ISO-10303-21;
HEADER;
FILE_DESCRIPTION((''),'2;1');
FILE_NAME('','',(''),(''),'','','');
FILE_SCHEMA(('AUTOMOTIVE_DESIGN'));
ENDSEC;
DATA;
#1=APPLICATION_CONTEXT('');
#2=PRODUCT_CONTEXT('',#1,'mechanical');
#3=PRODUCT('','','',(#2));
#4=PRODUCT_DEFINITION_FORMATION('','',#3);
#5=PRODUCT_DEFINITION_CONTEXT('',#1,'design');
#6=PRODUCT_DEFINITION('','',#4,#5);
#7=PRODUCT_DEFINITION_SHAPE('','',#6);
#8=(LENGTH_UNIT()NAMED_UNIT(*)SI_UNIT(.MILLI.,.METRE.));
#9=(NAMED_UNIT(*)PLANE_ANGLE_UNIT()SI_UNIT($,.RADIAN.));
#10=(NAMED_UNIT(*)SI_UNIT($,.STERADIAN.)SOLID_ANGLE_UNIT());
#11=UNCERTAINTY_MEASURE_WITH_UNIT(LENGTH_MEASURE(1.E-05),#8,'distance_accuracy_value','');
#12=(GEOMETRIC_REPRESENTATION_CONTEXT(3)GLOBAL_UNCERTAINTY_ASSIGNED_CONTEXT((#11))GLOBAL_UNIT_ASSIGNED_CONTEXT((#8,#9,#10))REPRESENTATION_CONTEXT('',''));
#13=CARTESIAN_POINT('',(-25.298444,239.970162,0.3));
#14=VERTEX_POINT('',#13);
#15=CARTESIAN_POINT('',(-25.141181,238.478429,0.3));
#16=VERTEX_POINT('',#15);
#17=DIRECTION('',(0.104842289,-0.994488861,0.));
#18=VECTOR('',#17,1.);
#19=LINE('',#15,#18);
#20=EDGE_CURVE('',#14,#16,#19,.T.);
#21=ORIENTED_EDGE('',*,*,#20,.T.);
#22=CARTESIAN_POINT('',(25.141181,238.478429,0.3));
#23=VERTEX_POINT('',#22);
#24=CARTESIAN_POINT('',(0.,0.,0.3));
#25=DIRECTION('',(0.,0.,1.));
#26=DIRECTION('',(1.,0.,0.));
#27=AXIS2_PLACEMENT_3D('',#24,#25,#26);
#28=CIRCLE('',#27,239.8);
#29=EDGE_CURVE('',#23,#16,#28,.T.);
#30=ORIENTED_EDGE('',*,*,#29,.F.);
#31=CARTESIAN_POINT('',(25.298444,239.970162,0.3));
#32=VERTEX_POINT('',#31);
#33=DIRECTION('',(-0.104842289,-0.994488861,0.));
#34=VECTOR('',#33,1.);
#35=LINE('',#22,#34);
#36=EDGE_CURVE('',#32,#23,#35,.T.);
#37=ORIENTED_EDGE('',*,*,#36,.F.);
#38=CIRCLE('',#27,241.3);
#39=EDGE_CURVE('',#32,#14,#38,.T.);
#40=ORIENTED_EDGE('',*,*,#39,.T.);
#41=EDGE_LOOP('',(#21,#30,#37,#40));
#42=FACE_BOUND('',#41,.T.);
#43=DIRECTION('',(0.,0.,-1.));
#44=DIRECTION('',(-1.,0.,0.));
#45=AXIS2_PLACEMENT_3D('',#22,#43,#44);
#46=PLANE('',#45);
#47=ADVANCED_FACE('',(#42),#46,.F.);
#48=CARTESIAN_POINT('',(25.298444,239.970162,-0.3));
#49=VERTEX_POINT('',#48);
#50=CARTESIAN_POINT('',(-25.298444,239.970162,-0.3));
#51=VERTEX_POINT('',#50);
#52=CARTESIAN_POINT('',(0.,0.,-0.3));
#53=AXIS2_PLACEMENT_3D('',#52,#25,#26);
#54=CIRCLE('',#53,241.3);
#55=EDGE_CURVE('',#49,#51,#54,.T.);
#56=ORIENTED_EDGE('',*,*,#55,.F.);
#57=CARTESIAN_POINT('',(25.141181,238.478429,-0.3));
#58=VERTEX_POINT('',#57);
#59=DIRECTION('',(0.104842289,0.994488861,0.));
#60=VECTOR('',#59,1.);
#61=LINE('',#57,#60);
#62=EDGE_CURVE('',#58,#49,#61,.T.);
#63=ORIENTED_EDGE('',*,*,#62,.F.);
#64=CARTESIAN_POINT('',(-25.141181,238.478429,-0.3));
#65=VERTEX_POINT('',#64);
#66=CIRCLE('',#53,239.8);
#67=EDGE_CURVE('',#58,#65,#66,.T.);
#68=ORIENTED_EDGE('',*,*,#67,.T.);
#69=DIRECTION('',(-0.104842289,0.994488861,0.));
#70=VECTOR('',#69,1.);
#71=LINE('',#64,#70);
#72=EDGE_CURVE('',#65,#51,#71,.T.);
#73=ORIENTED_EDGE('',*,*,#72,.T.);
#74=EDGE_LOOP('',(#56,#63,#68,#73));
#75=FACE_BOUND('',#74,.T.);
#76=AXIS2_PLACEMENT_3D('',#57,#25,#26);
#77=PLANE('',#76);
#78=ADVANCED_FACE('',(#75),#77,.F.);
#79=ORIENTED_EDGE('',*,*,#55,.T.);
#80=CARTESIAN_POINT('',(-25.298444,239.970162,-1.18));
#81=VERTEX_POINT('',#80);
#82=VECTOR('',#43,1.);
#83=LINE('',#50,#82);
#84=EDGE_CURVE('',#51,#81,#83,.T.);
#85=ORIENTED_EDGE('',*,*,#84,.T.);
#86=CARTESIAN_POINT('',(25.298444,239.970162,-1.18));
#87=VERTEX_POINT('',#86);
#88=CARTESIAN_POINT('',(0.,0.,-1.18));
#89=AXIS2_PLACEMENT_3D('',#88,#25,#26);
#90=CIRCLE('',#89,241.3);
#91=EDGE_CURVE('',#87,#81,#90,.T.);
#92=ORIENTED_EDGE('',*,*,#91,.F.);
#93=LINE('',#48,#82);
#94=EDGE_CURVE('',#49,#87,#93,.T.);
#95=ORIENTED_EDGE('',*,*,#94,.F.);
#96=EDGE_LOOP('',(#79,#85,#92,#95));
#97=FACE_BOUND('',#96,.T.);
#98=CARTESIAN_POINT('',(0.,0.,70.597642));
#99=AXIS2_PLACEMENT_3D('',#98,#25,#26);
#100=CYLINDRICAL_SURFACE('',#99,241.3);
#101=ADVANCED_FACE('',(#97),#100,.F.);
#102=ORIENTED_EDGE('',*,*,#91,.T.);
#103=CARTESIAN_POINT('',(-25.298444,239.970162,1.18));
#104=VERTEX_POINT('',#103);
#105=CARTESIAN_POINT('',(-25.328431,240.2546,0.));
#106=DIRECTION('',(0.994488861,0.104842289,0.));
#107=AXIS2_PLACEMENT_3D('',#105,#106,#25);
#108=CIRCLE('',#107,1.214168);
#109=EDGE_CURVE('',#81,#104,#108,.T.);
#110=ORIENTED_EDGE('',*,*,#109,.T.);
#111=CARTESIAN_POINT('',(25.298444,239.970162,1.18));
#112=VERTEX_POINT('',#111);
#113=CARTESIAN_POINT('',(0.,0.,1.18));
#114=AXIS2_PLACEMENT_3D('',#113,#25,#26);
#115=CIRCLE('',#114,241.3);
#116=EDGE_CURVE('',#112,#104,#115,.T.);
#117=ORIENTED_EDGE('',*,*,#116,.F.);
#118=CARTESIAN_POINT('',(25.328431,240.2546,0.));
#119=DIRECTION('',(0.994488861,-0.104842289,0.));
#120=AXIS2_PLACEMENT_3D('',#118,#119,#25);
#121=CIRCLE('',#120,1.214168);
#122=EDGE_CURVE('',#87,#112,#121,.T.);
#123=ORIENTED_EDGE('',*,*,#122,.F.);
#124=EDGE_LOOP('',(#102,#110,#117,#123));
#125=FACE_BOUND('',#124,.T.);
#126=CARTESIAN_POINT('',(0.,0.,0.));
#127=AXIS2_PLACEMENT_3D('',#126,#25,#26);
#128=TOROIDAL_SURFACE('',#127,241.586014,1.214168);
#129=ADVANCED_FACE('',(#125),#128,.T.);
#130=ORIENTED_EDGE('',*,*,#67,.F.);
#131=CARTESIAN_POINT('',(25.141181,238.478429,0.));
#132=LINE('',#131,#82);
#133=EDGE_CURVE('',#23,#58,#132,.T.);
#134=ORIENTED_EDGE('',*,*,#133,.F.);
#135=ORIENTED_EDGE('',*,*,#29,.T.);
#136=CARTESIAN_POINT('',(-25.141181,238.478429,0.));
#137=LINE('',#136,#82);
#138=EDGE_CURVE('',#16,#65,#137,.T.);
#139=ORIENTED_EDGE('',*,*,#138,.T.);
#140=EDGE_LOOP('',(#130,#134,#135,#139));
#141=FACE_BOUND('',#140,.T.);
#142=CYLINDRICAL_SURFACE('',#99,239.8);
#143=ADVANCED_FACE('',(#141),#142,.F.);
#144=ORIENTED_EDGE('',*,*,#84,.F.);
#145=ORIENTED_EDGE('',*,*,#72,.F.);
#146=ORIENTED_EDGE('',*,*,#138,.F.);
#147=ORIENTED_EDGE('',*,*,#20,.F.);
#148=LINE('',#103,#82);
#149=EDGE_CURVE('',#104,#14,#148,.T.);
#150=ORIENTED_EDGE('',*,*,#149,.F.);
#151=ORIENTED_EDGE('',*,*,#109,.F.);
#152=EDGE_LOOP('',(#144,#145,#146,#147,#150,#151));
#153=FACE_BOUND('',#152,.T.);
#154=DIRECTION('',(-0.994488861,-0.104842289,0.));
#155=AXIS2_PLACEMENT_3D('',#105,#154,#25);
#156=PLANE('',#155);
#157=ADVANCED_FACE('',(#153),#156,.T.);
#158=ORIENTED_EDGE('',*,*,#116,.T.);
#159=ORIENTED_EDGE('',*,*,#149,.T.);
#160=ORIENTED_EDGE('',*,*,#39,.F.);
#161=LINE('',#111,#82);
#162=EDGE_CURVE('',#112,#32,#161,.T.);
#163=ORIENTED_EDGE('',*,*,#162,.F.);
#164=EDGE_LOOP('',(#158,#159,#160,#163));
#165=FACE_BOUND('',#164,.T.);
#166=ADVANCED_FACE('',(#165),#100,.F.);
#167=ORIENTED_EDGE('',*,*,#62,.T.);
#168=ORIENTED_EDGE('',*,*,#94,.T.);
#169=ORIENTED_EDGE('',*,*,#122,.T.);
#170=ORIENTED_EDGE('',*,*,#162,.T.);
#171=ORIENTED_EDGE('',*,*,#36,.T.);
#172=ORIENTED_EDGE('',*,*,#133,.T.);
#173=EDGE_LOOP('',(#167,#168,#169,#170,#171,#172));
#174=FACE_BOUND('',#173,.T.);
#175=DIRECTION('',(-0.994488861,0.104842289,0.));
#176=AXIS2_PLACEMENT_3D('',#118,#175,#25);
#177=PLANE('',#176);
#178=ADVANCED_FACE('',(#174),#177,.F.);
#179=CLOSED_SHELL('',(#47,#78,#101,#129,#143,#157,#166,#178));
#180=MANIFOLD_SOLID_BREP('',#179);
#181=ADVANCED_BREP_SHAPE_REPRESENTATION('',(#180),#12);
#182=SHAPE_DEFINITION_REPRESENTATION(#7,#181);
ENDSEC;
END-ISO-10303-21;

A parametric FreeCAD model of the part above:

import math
import FreeCAD as App
import Part
import Sketcher

V = App.Vector

doc = App.newDocument("Part")
body = doc.addObject("PartDesign::Body", "Body")

# Sketch on YZ plane
sketch1 = doc.addObject("Sketcher::SketchObject", "Sketch")
body.addObject(sketch1)
sketch1.AttachmentSupport = (doc.YZ_Plane, [""])
sketch1.MapMode = "FlatFace"
sketch1.addGeometry([
    Part.LineSegment(V(239.8, -0.3, 0), V(241.3, -0.3, 0)),  # 0
    Part.LineSegment(V(241.3, -0.3, 0), V(241.3, -1.2, 0)),  # 1
    Part.ArcOfCircle(Part.Circle(V(241.6, 0, 0), V(0, 0, 1), 1.2), math.radians(-104), math.radians(104)),  # 2
    Part.LineSegment(V(241.3, 1.2, 0), V(241.3, 0.3, 0)),  # 3
    Part.LineSegment(V(241.3, 0.3, 0), V(239.8, 0.3, 0)),  # 4
    Part.LineSegment(V(239.8, 0.3, 0), V(239.8, -0.3, 0)),  # 5
], False)
sketch1.addConstraint([
    Sketcher.Constraint("Coincident", 0, 2, 1, 1),
    Sketcher.Constraint("Coincident", 1, 2, 2, 1),
    Sketcher.Constraint("Coincident", 2, 2, 3, 1),
    Sketcher.Constraint("Coincident", 3, 2, 4, 1),
    Sketcher.Constraint("Coincident", 4, 2, 5, 1),
    Sketcher.Constraint("Coincident", 5, 2, 0, 1),
    Sketcher.Constraint("Horizontal", 0),
    Sketcher.Constraint("Vertical", 1),
    Sketcher.Constraint("Vertical", 3),
    Sketcher.Constraint("Horizontal", 4),
    Sketcher.Constraint("Vertical", 5),
    Sketcher.Constraint("Symmetric", 1, 2, 2, 2, -1),
    Sketcher.Constraint("Equal", 1, 3),
    Sketcher.Constraint("DistanceX", 0, 1, 0, 2, 1.5),
    Sketcher.Constraint("DistanceY", 5, 2, 5, 1, 0.6),
    Sketcher.Constraint("DistanceY", 1, 2, 1, 1, 0.88),
    Sketcher.Constraint("DistanceX", -1, 1, 0, 2, 241.3),
    Sketcher.Constraint("Radius", 2, 1.214168),
])
revolution = doc.addObject("PartDesign::Revolution", "Revolution")
body.addObject(revolution)
revolution.Profile = sketch1
revolution.ReferenceAxis = (sketch1, ["V_Axis"])
revolution.Angle = 6.01808
revolution.Reversed = True

# Sketch on YZ plane
sketch2 = doc.addObject("Sketcher::SketchObject", "Sketch001")
body.addObject(sketch2)
sketch2.AttachmentSupport = (doc.YZ_Plane, [""])
sketch2.MapMode = "FlatFace"
sketch2.addGeometry([
    Part.LineSegment(V(239.8, -0.3, 0), V(241.3, -0.3, 0)),  # 0
    Part.LineSegment(V(241.3, -0.3, 0), V(241.3, -1.2, 0)),  # 1
    Part.ArcOfCircle(Part.Circle(V(241.6, 0, 0), V(0, 0, 1), 1.2), math.radians(-104), math.radians(104)),  # 2
    Part.LineSegment(V(241.3, 1.2, 0), V(241.3, 0.3, 0)),  # 3
    Part.LineSegment(V(241.3, 0.3, 0), V(239.8, 0.3, 0)),  # 4
    Part.LineSegment(V(239.8, 0.3, 0), V(239.8, -0.3, 0)),  # 5
], False)
sketch2.addConstraint([
    Sketcher.Constraint("Coincident", 0, 2, 1, 1),
    Sketcher.Constraint("Coincident", 1, 2, 2, 1),
    Sketcher.Constraint("Coincident", 2, 2, 3, 1),
    Sketcher.Constraint("Coincident", 3, 2, 4, 1),
    Sketcher.Constraint("Coincident", 4, 2, 5, 1),
    Sketcher.Constraint("Coincident", 5, 2, 0, 1),
    Sketcher.Constraint("Horizontal", 0),
    Sketcher.Constraint("Vertical", 1),
    Sketcher.Constraint("Vertical", 3),
    Sketcher.Constraint("Horizontal", 4),
    Sketcher.Constraint("Vertical", 5),
    Sketcher.Constraint("Symmetric", 1, 2, 2, 2, -1),
    Sketcher.Constraint("Equal", 1, 3),
    Sketcher.Constraint("DistanceX", 0, 1, 0, 2, 1.5),
    Sketcher.Constraint("DistanceY", 5, 2, 5, 1, 0.6),
    Sketcher.Constraint("DistanceY", 1, 2, 1, 1, 0.88),
    Sketcher.Constraint("DistanceX", -1, 1, 0, 2, 241.3),
    Sketcher.Constraint("Radius", 2, 1.214168),
])
revolution2 = doc.addObject("PartDesign::Revolution", "Revolution001")
body.addObject(revolution2)
revolution2.Profile = sketch2
revolution2.ReferenceAxis = (sketch2, ["V_Axis"])
revolution2.Angle = 6.01808

doc.recompute()
